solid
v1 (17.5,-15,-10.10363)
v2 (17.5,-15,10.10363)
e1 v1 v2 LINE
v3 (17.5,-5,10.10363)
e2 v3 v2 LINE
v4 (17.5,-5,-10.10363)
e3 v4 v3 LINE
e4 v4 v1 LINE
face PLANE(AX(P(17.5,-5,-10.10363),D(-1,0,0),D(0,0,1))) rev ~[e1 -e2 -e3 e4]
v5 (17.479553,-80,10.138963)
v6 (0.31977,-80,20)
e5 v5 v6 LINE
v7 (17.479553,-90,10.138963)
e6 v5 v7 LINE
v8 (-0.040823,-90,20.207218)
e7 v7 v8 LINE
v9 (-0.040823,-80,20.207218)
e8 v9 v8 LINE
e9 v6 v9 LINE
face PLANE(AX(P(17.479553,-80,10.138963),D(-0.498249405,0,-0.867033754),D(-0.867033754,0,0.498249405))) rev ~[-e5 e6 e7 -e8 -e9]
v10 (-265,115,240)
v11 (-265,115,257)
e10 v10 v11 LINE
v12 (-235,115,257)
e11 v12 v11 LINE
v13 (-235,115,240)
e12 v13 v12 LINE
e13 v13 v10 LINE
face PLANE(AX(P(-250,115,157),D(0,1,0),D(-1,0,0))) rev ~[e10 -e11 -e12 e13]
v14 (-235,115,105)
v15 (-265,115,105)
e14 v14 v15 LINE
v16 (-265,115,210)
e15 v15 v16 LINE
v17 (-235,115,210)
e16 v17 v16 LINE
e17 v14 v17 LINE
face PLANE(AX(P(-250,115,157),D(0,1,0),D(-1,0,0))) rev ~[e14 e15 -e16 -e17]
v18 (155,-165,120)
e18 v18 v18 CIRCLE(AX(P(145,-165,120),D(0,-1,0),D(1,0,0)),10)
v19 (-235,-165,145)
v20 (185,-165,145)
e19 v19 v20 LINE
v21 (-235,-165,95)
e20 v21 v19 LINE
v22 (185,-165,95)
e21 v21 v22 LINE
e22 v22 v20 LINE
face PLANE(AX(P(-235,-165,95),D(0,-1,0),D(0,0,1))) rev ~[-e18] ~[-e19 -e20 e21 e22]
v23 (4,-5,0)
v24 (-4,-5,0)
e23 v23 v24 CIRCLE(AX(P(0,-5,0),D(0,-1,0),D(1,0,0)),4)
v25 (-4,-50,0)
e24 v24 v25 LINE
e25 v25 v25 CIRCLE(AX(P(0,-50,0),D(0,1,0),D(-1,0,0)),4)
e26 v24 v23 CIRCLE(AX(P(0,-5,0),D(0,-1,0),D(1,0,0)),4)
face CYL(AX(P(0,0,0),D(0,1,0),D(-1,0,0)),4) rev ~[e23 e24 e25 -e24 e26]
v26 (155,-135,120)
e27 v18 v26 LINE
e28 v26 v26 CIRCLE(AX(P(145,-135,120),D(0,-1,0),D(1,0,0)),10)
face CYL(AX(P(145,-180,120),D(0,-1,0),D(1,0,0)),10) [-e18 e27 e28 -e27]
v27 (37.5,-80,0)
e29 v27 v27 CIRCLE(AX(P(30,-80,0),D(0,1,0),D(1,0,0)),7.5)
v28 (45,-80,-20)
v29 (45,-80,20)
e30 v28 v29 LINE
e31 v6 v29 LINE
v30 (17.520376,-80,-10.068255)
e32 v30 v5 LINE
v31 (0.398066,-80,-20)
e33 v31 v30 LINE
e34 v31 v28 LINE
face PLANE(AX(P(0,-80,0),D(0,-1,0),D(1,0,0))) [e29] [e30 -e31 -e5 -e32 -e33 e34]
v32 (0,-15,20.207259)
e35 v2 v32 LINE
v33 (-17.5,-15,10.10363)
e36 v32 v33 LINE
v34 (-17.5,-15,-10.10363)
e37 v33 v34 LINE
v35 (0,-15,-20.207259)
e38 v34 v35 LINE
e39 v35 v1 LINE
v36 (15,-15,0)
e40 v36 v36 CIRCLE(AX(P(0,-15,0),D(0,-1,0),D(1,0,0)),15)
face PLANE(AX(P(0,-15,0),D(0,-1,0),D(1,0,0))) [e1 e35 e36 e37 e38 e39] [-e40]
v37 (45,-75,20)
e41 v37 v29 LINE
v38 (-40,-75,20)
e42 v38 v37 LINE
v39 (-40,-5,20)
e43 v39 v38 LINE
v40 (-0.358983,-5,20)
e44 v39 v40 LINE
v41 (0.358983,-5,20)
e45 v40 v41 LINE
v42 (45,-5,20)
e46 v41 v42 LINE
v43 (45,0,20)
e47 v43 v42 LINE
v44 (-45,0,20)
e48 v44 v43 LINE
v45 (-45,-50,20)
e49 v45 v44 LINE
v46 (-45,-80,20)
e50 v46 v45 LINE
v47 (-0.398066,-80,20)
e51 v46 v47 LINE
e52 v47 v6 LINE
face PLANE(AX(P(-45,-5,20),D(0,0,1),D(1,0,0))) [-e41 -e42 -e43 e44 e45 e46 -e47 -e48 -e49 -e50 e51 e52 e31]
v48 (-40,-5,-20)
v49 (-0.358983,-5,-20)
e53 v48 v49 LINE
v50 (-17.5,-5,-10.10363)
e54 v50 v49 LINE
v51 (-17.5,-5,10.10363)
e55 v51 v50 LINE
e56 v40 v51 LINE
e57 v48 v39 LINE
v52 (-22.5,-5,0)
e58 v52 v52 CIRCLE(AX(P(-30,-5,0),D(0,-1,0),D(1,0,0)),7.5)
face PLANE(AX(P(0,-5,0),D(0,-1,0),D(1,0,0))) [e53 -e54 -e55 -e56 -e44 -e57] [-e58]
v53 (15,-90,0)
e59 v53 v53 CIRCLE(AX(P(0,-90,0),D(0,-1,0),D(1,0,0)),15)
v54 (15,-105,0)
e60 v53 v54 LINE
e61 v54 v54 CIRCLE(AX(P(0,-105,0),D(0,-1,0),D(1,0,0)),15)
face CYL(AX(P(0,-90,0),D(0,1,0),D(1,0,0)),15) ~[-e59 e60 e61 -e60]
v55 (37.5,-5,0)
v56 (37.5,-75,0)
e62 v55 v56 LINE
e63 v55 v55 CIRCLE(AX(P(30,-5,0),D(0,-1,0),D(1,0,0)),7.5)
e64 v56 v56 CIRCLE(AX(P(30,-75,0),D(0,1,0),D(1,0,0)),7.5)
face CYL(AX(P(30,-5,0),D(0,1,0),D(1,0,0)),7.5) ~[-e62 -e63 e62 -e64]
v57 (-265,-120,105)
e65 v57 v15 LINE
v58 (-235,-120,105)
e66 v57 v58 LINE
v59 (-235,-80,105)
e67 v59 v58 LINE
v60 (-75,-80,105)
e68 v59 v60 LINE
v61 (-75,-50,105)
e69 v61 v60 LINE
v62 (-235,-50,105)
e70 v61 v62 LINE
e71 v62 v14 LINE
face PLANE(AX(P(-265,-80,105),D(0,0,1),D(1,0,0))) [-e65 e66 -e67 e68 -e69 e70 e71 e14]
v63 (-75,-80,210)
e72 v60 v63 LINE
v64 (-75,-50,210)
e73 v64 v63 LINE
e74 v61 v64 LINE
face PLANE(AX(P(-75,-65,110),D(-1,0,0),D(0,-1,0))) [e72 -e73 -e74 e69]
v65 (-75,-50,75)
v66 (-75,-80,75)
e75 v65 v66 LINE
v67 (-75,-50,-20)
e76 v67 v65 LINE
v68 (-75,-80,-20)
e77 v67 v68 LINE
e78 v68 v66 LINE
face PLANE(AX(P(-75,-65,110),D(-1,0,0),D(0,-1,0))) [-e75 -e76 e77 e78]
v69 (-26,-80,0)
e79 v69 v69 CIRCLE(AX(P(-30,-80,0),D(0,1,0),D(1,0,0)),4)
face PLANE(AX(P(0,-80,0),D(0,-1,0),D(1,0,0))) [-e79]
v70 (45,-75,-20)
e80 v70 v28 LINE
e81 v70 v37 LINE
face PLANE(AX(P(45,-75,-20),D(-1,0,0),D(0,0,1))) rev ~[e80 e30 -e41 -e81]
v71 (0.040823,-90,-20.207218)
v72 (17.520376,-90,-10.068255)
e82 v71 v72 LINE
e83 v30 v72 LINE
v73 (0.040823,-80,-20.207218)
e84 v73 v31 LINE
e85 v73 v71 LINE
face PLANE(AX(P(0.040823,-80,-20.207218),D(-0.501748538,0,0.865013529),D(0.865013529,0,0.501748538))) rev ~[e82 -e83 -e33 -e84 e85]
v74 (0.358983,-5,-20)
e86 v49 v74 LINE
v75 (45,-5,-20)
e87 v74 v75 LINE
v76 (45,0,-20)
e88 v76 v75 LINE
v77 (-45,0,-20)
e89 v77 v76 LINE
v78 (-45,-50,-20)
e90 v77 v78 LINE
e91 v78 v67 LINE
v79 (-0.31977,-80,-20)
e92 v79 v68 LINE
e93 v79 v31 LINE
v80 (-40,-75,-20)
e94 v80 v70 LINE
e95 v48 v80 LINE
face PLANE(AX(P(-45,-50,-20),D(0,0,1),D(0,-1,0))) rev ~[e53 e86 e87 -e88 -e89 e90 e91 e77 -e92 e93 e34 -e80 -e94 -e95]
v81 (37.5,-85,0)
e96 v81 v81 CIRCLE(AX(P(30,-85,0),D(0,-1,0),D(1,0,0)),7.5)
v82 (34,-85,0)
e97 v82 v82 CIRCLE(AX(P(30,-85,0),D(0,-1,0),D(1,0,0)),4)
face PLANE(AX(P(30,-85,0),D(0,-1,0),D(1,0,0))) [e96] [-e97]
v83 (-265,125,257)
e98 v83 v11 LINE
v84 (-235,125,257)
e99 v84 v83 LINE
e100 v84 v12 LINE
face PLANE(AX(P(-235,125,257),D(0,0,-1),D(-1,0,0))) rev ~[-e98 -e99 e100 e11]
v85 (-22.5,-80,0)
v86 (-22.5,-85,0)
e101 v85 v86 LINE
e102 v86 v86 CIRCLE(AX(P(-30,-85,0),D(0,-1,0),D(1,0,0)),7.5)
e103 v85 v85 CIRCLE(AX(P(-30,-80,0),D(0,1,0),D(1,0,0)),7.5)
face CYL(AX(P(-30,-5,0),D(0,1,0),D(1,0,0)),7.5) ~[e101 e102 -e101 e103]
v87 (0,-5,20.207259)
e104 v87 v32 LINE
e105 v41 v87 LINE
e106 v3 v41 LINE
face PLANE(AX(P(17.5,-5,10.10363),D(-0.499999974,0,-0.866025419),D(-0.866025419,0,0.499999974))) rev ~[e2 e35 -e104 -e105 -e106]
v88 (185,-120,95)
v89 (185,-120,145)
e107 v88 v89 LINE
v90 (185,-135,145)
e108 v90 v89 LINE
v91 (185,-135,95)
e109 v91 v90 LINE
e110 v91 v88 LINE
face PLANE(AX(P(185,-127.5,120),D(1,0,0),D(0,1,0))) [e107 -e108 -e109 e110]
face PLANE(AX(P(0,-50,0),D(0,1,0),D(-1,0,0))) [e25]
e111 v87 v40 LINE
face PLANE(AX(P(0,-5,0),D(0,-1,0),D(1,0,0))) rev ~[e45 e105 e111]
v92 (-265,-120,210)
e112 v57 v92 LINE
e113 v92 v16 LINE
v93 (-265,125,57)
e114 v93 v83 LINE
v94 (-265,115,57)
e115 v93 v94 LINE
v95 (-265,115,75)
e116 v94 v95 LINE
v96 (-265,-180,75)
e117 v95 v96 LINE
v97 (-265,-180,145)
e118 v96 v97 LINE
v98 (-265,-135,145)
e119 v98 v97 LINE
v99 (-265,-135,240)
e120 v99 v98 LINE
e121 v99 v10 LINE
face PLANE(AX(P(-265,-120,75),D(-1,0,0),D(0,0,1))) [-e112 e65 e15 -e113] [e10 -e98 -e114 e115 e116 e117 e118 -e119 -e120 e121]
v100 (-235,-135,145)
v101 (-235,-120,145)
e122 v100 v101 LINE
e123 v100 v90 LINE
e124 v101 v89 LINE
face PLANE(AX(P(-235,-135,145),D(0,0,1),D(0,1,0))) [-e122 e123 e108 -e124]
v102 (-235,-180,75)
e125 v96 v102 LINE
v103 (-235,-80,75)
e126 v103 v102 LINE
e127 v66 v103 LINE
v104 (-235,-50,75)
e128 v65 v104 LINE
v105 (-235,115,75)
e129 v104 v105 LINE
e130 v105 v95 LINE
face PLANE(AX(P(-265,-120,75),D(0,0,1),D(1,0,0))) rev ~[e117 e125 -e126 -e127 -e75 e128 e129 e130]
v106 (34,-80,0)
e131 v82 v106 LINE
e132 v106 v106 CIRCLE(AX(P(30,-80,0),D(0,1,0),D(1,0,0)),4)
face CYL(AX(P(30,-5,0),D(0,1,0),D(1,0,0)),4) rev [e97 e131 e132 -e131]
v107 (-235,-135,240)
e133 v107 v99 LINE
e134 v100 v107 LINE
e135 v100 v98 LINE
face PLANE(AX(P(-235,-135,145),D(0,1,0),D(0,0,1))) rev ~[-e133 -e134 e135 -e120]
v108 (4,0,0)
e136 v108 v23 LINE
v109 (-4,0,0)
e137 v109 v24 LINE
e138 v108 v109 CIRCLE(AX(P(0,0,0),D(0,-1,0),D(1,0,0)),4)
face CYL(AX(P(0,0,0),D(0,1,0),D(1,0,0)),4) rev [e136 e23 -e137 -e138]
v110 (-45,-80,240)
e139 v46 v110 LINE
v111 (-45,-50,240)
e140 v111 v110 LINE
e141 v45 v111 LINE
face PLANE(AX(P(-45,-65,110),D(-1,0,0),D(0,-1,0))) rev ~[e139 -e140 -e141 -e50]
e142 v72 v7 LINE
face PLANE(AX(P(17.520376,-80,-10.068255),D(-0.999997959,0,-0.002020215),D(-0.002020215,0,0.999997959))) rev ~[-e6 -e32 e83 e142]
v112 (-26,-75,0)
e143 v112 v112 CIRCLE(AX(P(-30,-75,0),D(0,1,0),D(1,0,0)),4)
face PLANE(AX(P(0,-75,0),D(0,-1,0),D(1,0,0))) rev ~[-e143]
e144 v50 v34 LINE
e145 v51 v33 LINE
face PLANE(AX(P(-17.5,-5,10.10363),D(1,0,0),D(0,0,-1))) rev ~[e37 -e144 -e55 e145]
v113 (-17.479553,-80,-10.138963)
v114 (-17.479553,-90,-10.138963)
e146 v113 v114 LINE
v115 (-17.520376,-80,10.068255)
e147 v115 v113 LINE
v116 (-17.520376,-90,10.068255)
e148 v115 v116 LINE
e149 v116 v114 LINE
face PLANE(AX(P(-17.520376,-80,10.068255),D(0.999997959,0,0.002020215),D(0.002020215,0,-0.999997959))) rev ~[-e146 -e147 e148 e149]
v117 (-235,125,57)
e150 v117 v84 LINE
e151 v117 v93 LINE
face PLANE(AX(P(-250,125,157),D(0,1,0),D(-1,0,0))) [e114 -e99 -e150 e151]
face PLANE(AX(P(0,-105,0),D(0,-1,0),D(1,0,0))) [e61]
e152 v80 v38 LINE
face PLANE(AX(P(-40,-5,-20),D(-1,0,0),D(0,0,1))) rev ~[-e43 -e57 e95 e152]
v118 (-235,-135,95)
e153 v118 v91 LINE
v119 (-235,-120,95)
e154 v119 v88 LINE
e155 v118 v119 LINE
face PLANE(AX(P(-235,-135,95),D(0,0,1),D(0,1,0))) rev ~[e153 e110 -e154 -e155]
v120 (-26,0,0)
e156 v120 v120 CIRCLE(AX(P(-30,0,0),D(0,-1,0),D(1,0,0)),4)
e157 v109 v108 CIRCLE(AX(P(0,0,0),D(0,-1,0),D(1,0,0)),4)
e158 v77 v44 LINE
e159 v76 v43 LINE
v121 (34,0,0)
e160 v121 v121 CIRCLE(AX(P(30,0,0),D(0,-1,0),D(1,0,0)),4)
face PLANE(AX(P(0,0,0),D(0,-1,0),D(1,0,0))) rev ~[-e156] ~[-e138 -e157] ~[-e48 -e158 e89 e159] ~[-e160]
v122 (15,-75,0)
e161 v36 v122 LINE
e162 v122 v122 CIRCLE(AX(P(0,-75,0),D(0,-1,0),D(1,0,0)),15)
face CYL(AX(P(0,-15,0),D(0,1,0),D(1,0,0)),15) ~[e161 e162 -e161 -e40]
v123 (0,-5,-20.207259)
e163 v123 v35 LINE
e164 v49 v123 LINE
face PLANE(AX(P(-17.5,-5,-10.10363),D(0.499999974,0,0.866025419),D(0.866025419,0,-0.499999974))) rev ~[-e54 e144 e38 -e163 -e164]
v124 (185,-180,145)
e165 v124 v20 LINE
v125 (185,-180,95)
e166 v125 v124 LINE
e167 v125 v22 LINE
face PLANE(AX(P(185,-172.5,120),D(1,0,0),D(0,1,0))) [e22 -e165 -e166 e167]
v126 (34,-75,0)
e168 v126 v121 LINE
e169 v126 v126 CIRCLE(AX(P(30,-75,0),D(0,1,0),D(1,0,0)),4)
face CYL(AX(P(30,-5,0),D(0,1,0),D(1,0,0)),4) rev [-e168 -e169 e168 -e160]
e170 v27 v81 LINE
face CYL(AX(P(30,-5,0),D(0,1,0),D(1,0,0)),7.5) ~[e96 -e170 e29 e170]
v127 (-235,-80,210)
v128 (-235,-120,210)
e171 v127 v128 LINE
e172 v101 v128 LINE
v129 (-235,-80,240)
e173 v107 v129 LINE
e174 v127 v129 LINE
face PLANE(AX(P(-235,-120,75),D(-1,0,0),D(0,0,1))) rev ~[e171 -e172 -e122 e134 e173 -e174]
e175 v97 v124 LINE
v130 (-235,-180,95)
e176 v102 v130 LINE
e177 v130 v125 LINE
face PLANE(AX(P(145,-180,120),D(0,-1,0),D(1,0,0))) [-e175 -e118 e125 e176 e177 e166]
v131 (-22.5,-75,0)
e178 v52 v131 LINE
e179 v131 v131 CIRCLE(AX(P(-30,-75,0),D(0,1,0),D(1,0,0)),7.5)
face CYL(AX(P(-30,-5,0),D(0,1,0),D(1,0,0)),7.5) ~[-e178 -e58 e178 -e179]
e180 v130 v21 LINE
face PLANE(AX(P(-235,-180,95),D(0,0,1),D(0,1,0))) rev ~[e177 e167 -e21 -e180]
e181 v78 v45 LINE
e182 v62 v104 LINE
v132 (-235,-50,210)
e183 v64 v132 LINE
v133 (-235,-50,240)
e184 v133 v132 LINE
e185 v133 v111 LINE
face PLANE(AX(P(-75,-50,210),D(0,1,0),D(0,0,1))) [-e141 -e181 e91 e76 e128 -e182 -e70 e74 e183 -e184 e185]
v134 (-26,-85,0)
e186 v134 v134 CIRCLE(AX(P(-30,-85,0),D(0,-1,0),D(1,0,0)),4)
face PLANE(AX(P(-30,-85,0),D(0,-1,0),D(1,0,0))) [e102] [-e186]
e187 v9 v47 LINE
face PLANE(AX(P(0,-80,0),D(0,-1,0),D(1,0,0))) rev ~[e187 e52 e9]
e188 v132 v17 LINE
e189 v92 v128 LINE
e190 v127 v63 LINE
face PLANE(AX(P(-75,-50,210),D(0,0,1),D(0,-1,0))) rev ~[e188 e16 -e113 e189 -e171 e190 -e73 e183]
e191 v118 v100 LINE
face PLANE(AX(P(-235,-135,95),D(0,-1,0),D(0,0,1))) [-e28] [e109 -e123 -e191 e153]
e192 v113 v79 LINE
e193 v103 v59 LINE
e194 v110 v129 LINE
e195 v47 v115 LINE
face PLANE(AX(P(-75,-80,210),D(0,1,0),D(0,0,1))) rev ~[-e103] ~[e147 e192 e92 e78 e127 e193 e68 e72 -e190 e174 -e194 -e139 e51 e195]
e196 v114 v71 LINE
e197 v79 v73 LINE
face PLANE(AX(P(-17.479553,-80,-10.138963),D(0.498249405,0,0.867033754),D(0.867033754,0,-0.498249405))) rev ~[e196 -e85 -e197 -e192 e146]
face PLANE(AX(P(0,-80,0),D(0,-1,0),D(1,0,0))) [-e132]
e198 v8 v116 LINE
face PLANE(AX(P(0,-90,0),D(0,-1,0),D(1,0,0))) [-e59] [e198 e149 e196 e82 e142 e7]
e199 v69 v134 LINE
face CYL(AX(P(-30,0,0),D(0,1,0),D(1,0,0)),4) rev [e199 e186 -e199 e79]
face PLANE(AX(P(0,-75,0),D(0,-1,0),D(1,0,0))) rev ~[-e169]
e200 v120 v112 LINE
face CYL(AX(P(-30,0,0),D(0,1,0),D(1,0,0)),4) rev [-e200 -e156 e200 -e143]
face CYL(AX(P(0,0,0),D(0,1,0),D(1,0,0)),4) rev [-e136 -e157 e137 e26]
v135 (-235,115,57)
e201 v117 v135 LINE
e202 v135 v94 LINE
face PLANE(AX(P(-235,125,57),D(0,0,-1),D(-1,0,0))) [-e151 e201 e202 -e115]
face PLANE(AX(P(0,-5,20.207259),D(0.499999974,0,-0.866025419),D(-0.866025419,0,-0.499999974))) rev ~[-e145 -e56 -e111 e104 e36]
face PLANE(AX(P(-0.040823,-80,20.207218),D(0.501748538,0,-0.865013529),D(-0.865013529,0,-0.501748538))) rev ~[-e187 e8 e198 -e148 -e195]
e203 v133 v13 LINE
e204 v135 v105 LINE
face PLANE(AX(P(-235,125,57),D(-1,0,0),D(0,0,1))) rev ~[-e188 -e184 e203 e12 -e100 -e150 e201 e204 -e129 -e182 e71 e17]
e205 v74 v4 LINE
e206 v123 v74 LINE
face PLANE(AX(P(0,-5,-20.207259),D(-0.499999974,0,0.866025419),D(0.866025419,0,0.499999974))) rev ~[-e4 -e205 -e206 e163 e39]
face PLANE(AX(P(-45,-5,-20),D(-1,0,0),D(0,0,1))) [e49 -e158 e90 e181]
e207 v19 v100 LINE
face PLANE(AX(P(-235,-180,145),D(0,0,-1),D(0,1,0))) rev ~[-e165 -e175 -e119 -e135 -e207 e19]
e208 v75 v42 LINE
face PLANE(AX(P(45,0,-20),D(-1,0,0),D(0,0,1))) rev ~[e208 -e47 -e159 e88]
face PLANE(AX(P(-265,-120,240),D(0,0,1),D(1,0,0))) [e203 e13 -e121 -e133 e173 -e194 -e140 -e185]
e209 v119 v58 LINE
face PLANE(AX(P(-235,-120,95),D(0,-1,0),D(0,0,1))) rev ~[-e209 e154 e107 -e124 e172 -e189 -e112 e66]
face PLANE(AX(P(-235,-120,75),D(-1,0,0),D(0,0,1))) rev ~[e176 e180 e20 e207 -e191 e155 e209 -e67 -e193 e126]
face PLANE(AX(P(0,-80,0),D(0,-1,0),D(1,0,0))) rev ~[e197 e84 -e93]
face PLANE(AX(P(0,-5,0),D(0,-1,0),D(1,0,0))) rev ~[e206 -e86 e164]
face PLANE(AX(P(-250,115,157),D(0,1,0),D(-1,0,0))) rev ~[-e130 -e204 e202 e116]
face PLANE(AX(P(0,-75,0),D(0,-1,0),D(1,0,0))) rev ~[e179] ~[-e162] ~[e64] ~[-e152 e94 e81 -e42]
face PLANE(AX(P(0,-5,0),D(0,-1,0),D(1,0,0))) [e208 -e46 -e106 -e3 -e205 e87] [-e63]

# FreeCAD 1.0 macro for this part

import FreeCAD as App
import Part
import Sketcher

V = App.Vector
Q = App.Units.Quantity

doc = App.newDocument("Part")
body = doc.addObject("PartDesign::Body", "Body")

# Sketch on XZ plane
sketch1 = body.newObject("Sketcher::SketchObject", "Sketch")
sketch1.AttachmentSupport = (doc.getObject("XZ_Plane"), [""])
sketch1.MapMode = "FlatFace"
sketch1.addGeometry([
    Part.LineSegment(V(-45, 20, 0), V(-45, -20, 0)),  # 0
    Part.LineSegment(V(-45, -20, 0), V(45, -20, 0)),  # 1
    Part.LineSegment(V(45, -20, 0), V(45, 20, 0)),  # 2
    Part.LineSegment(V(45, 20, 0), V(-45, 20, 0)),  # 3
    Part.Circle(V(-30, 0, 0), V(0, 0, 1), 4),  # 4
    Part.Circle(V(0, 0, 0), V(0, 0, 1), 4),  # 5
    Part.Circle(V(30, 0, 0), V(0, 0, 1), 4),  # 6
], False)
sketch1.addConstraint([
    Sketcher.Constraint("Coincident", 0, 2, 1, 1),
    Sketcher.Constraint("Coincident", 1, 2, 2, 1),
    Sketcher.Constraint("Coincident", 2, 2, 3, 1),
    Sketcher.Constraint("Coincident", 3, 2, 0, 1),
    Sketcher.Constraint("Vertical", 0),
    Sketcher.Constraint("Horizontal", 1),
    Sketcher.Constraint("Vertical", 2),
    Sketcher.Constraint("Horizontal", 3),
    Sketcher.Constraint("Coincident", 5, 3, -1, 1),
    Sketcher.Constraint("Equal", 4, 5),
    Sketcher.Constraint("Equal", 5, 6),
    Sketcher.Constraint("Symmetric", 4, 3, 6, 3, -1, 1),
    Sketcher.Constraint("Symmetric", 0, 2, 2, 2, -1, 1),
    Sketcher.Constraint("PointOnObject", 4, 3, -1),
    Sketcher.Constraint("Diameter", 4, 8.0),
    Sketcher.Constraint("DistanceX", 1, 1, 1, 2, 90.0),
    Sketcher.Constraint("DistanceY", 0, 2, 0, 1, 40.0),
    Sketcher.Constraint("DistanceX", 4, 3, -1, 1, 30.0),
])
pad1 = body.newObject("PartDesign::Pad", "Pad")
pad1.Profile = sketch1
pad1.Length = 5

# Sketch on XZ plane
sketch2 = body.newObject("Sketcher::SketchObject", "Sketch001")
sketch2.AttachmentSupport = (doc.getObject("XZ_Plane"), [""])
sketch2.MapMode = "FlatFace"
sketch2.AttachmentOffset = App.Placement(V(0, 0, 5), App.Rotation())
sketch2.addGeometry([
    Part.LineSegment(V(18, -10, 0), V(18, 10, 0)),  # 0
    Part.LineSegment(V(18, 10, 0), V(0, 20, 0)),  # 1
    Part.LineSegment(V(0, 20, 0), V(-18, 10, 0)),  # 2
    Part.LineSegment(V(-18, 10, 0), V(-18, -10, 0)),  # 3
    Part.LineSegment(V(-18, -10, 0), V(0, -20, 0)),  # 4
    Part.LineSegment(V(0, -20, 0), V(18, -10, 0)),  # 5
], False)
sketch2.addConstraint([
    Sketcher.Constraint("Coincident", 0, 2, 1, 1),
    Sketcher.Constraint("Coincident", 1, 2, 2, 1),
    Sketcher.Constraint("Coincident", 2, 2, 3, 1),
    Sketcher.Constraint("Coincident", 3, 2, 4, 1),
    Sketcher.Constraint("Coincident", 4, 2, 5, 1),
    Sketcher.Constraint("Coincident", 5, 2, 0, 1),
    Sketcher.Constraint("Vertical", 0),
    Sketcher.Constraint("Vertical", 3),
    Sketcher.Constraint("Symmetric", 0, 2, 3, 2, -1, 1),
    Sketcher.Constraint("Symmetric", 1, 2, 4, 2, -1, 1),
    Sketcher.Constraint("PointOnObject", 1, 2, -2),
    Sketcher.Constraint("Parallel", 2, 5),
    Sketcher.Constraint("Horizontal", 0, 2, 2, 2),
    Sketcher.Constraint("Angle", 1, Q("150.000002 deg")),
    Sketcher.Constraint("DistanceX", 2, 2, 0, 2, 35.0),
    Sketcher.Constraint("DistanceY", 0, 1, 0, 2, 20.20726),
])
pad2 = body.newObject("PartDesign::Pad", "Pad001")
pad2.Profile = sketch2
pad2.Length = 10

# Sketch on XZ plane
sketch3 = body.newObject("Sketcher::SketchObject", "Sketch002")
sketch3.AttachmentSupport = (doc.getObject("XZ_Plane"), [""])
sketch3.MapMode = "FlatFace"
sketch3.AttachmentOffset = App.Placement(V(0, 0, 15), App.Rotation())
sketch3.addGeometry(Part.Circle(V(0, 0, 0), V(0, 0, 1), 15), False)
sketch3.addConstraint([
    Sketcher.Constraint("Coincident", 0, 3, -1, 1),
    Sketcher.Constraint("Diameter", 0, 30.0),
])
pad3 = body.newObject("PartDesign::Pad", "Pad002")
pad3.Profile = sketch3
pad3.Length = 60

# Sketch on XZ plane
sketch4 = body.newObject("Sketcher::SketchObject", "Sketch003")
sketch4.AttachmentSupport = (doc.getObject("XZ_Plane"), [""])
sketch4.MapMode = "FlatFace"
sketch4.AttachmentOffset = App.Placement(V(0, 0, 5), App.Rotation())
sketch4.addGeometry([
    Part.Circle(V(30, 0, 0), V(0, 0, 1), 7.5),
    Part.Circle(V(30, 0, 0), V(0, 0, 1), 4),
    Part.Circle(V(-30, 0, 0), V(0, 0, 1), 7.5),
    Part.Circle(V(-30, 0, 0), V(0, 0, 1), 4),
], False)
sketch4.addConstraint([
    Sketcher.Constraint("Coincident", 1, 3, 0, 3),
    Sketcher.Constraint("Coincident", 3, 3, 2, 3),
    Sketcher.Constraint("Equal", 0, 2),
    Sketcher.Constraint("Equal", 1, 3),
    Sketcher.Constraint("Symmetric", 0, 3, 2, 3, -1, 1),
    Sketcher.Constraint("PointOnObject", 0, 3, -1),
    Sketcher.Constraint("Diameter", 0, 15.0),
    Sketcher.Constraint("Diameter", 1, 8.0),
    Sketcher.Constraint("DistanceX", -1, 1, 0, 3, 30.0),
])
pad4 = body.newObject("PartDesign::Pad", "Pad003")
pad4.Profile = sketch4
pad4.Length = 80

# Sketch on XZ plane
sketch5 = body.newObject("Sketcher::SketchObject", "Sketch004")
sketch5.AttachmentSupport = (doc.getObject("XZ_Plane"), [""])
sketch5.MapMode = "FlatFace"
sketch5.AttachmentOffset = App.Placement(V(0, 0, 75), App.Rotation())
sketch5.addGeometry([
    Part.LineSegment(V(-45, 20, 0), V(-45, -20, 0)),
    Part.LineSegment(V(-45, -20, 0), V(45, -20, 0)),
    Part.LineSegment(V(45, -20, 0), V(45, 20, 0)),
    Part.LineSegment(V(45, 20, 0), V(-45, 20, 0)),
], False)
sketch5.addConstraint([
    Sketcher.Constraint("Coincident", 0, 2, 1, 1),
    Sketcher.Constraint("Coincident", 1, 2, 2, 1),
    Sketcher.Constraint("Coincident", 2, 2, 3, 1),
    Sketcher.Constraint("Coincident", 3, 2, 0, 1),
    Sketcher.Constraint("Vertical", 0),
    Sketcher.Constraint("Horizontal", 1),
    Sketcher.Constraint("Vertical", 2),
    Sketcher.Constraint("Horizontal", 3),
    Sketcher.Constraint("Symmetric", 0, 2, 2, 2, -1, 1),
    Sketcher.Constraint("DistanceX", 1, 1, 1, 2, 90.0),
    Sketcher.Constraint("DistanceY", 0, 2, 0, 1, 40.0),
])
pad5 = body.newObject("PartDesign::Pad", "Pad004")
pad5.Profile = sketch5
pad5.Length = 5

# Sketch on XZ plane
sketch6 = body.newObject("Sketcher::SketchObject", "Sketch005")
sketch6.AttachmentSupport = (doc.getObject("XZ_Plane"), [""])
sketch6.MapMode = "FlatFace"
sketch6.AttachmentOffset = App.Placement(V(0, 0, 80), App.Rotation())
sketch6.addGeometry([
    Part.LineSegment(V(0, -20, 0), V(18, -10, 0)),  # 0
    Part.LineSegment(V(18, -10, 0), V(17, 10, 0)),  # 1
    Part.LineSegment(V(17, 10, 0), V(0, 20, 0)),  # 2
    Part.LineSegment(V(0, 20, 0), V(-18, 10, 0)),  # 3
    Part.LineSegment(V(-18, 10, 0), V(-17, -10, 0)),  # 4
    Part.LineSegment(V(-17, -10, 0), V(0, -20, 0)),  # 5
], False)
sketch6.addConstraint([
    Sketcher.Constraint("Coincident", 0, 2, 1, 1),
    Sketcher.Constraint("Coincident", 1, 2, 2, 1),
    Sketcher.Constraint("Coincident", 2, 2, 3, 1),
    Sketcher.Constraint("Coincident", 3, 2, 4, 1),
    Sketcher.Constraint("Coincident", 4, 2, 5, 1),
    Sketcher.Constraint("Coincident", 5, 2, 0, 1),
    Sketcher.Constraint("Symmetric", 0, 2, 3, 2, -1, 1),
    Sketcher.Constraint("Symmetric", 1, 2, 4, 2, -1, 1),
    Sketcher.Constraint("Symmetric", 2, 2, 5, 2, -1, 1),
    Sketcher.Constraint("Equal", 0, 1),
    Sketcher.Constraint("Equal", 1, 2),
    Sketcher.Constraint("DistanceX", 2, 2, 0, 2, 17.561199),
    Sketcher.Constraint("Distance", 0, 20.20726),
    Sketcher.Constraint("DistanceY", -1, 1, 2, 2, 20.207218),
    Sketcher.Constraint("DistanceX", 3, 2, 0, 2, 35.040752),
])
pad6 = body.newObject("PartDesign::Pad", "Pad005")
pad6.Profile = sketch6
pad6.Length = 10

# Sketch on XZ plane
sketch7 = body.newObject("Sketcher::SketchObject", "Sketch006")
sketch7.AttachmentSupport = (doc.getObject("XZ_Plane"), [""])
sketch7.MapMode = "FlatFace"
sketch7.AttachmentOffset = App.Placement(V(0, 0, 90), App.Rotation())
sketch7.addGeometry(Part.Circle(V(0, 0, 0), V(0, 0, 1), 15), False)
sketch7.addConstraint([
    Sketcher.Constraint("Coincident", 0, 3, -1, 1),
    Sketcher.Constraint("Diameter", 0, 30.0),
])
pad7 = body.newObject("PartDesign::Pad", "Pad006")
pad7.Profile = sketch7
pad7.Length = 15

# Sketch on XZ plane
sketch8 = body.newObject("Sketcher::SketchObject", "Sketch007")
sketch8.AttachmentSupport = (doc.getObject("XZ_Plane"), [""])
sketch8.MapMode = "FlatFace"
sketch8.AttachmentOffset = App.Placement(V(0, 0, 5), App.Rotation())
sketch8.addGeometry([
    Part.LineSegment(V(-45, 20, 0), V(-45, -20, 0)),
    Part.LineSegment(V(-45, -20, 0), V(-40, -20, 0)),
    Part.LineSegment(V(-40, -20, 0), V(-40, 20, 0)),
    Part.LineSegment(V(-40, 20, 0), V(-45, 20, 0)),
], False)
sketch8.addConstraint([
    Sketcher.Constraint("Coincident", 0, 2, 1, 1),
    Sketcher.Constraint("Coincident", 1, 2, 2, 1),
    Sketcher.Constraint("Coincident", 2, 2, 3, 1),
    Sketcher.Constraint("Coincident", 3, 2, 0, 1),
    Sketcher.Constraint("Vertical", 0),
    Sketcher.Constraint("Horizontal", 1),
    Sketcher.Constraint("Vertical", 2),
    Sketcher.Constraint("Horizontal", 3),
    Sketcher.Constraint("DistanceX", 1, 1, 1, 2, 5.0),
    Sketcher.Constraint("DistanceY", 0, 2, 0, 1, 40.0),
    Sketcher.Constraint("DistanceX", 0, 2, -1, 1, 45.0),
    Sketcher.Constraint("DistanceY", 0, 2, -1, 1, 20.0),
])
pad8 = body.newObject("PartDesign::Pad", "Pad007")
pad8.Profile = sketch8
pad8.Type = "UpToLast"

# Sketch on XZ plane
sketch9 = body.newObject("Sketcher::SketchObject", "Sketch008")
sketch9.AttachmentSupport = (doc.getObject("XZ_Plane"), [""])
sketch9.MapMode = "FlatFace"
sketch9.addGeometry(Part.Circle(V(0, 0, 0), V(0, 0, 1), 4), False)
sketch9.addConstraint([
    Sketcher.Constraint("Coincident", 0, 3, -1, 1),
    Sketcher.Constraint("Diameter", 0, 8.0),
])
pocket1 = body.newObject("PartDesign::Pocket", "Pocket")
pocket1.Profile = sketch9
pocket1.Length = 50
pocket1.Reversed = True

# Sketch on YZ plane
sketch10 = body.newObject("Sketcher::SketchObject", "Sketch009")
sketch10.AttachmentSupport = (doc.getObject("YZ_Plane"), [""])
sketch10.MapMode = "FlatFace"
sketch10.AttachmentOffset = App.Placement(V(0, 0, -45), App.Rotation())
sketch10.addGeometry([
    Part.LineSegment(V(-50, 240, 0), V(-50, -20, 0)),
    Part.LineSegment(V(-50, -20, 0), V(-80, -20, 0)),
    Part.LineSegment(V(-80, -20, 0), V(-80, 240, 0)),
    Part.LineSegment(V(-80, 240, 0), V(-50, 240, 0)),
], False)
sketch10.addConstraint([
    Sketcher.Constraint("Coincident", 0, 2, 1, 1),
    Sketcher.Constraint("Coincident", 1, 2, 2, 1),
    Sketcher.Constraint("Coincident", 2, 2, 3, 1),
    Sketcher.Constraint("Coincident", 3, 2, 0, 1),
    Sketcher.Constraint("Vertical", 0),
    Sketcher.Constraint("Horizontal", 1),
    Sketcher.Constraint("Vertical", 2),
    Sketcher.Constraint("Horizontal", 3),
    Sketcher.Constraint("DistanceX", 1, 2, 1, 1, 30.0),
    Sketcher.Constraint("DistanceY", 0, 2, 0, 1, 260.0),
    Sketcher.Constraint("DistanceX", 0, 2, -1, 1, 50.0),
    Sketcher.Constraint("DistanceY", 0, 2, -1, 1, 20.0),
])
pad9 = body.newObject("PartDesign::Pad", "Pad008")
pad9.Profile = sketch10
pad9.Length = 30
pad9.Reversed = True

# Sketch on YZ plane
sketch11 = body.newObject("Sketcher::SketchObject", "Sketch010")
sketch11.AttachmentSupport = (doc.getObject("YZ_Plane"), [""])
sketch11.MapMode = "FlatFace"
sketch11.AttachmentOffset = App.Placement(V(0, 0, -75), App.Rotation())
sketch11.addGeometry([
    Part.LineSegment(V(-50, 105, 0), V(-50, 75, 0)),  # 0
    Part.LineSegment(V(-50, 75, 0), V(-80, 75, 0)),  # 1
    Part.LineSegment(V(-80, 75, 0), V(-80, 105, 0)),  # 2
    Part.LineSegment(V(-80, 105, 0), V(-50, 105, 0)),  # 3
    Part.LineSegment(V(-50, 240, 0), V(-50, 210, 0)),  # 4
    Part.LineSegment(V(-50, 210, 0), V(-80, 210, 0)),  # 5
    Part.LineSegment(V(-80, 210, 0), V(-80, 240, 0)),  # 6
    Part.LineSegment(V(-80, 240, 0), V(-50, 240, 0)),  # 7
], False)
sketch11.addConstraint([
    Sketcher.Constraint("Coincident", 0, 2, 1, 1),
    Sketcher.Constraint("Coincident", 1, 2, 2, 1),
    Sketcher.Constraint("Coincident", 2, 2, 3, 1),
    Sketcher.Constraint("Coincident", 3, 2, 0, 1),
    Sketcher.Constraint("Coincident", 4, 2, 5, 1),
    Sketcher.Constraint("Coincident", 5, 2, 6, 1),
    Sketcher.Constraint("Coincident", 6, 2, 7, 1),
    Sketcher.Constraint("Coincident", 7, 2, 4, 1),
    Sketcher.Constraint("Vertical", 0),
    Sketcher.Constraint("Horizontal", 1),
    Sketcher.Constraint("Vertical", 2),
    Sketcher.Constraint("Horizontal", 3),
    Sketcher.Constraint("Vertical", 4),
    Sketcher.Constraint("Horizontal", 5),
    Sketcher.Constraint("Vertical", 6),
    Sketcher.Constraint("Horizontal", 7),
    Sketcher.Constraint("Vertical", 3, 2, 4, 2),
    Sketcher.Constraint("Vertical", 2, 2, 5, 2),
    Sketcher.Constraint("Equal", 7, 0),
    Sketcher.Constraint("Equal", 2, 4),
    Sketcher.Constraint("DistanceX", 1, 2, 1, 1, 30.0),
    Sketcher.Constraint("DistanceX", 0, 2, -1, 1, 50.0),
    Sketcher.Constraint("DistanceY", -1, 1, 0, 2, 75.0),
    Sketcher.Constraint("DistanceY", -1, 1, 4, 2, 210.0),
])
pad10 = body.newObject("PartDesign::Pad", "Pad009")
pad10.Profile = sketch11
pad10.Length = 190
pad10.Reversed = True

# Sketch on XZ plane
sketch12 = body.newObject("Sketcher::SketchObject", "Sketch011")
sketch12.AttachmentSupport = (doc.getObject("XZ_Plane"), [""])
sketch12.MapMode = "FlatFace"
sketch12.AttachmentOffset = App.Placement(V(0, 0, 80), App.Rotation())
sketch12.addGeometry([
    Part.LineSegment(V(-265, 105, 0), V(-265, 75, 0)),  # 0
    Part.LineSegment(V(-265, 75, 0), V(-235, 75, 0)),  # 1
    Part.LineSegment(V(-235, 75, 0), V(-235, 105, 0)),  # 2
    Part.LineSegment(V(-235, 105, 0), V(-265, 105, 0)),  # 3
    Part.LineSegment(V(-265, 240, 0), V(-265, 210, 0)),  # 4
    Part.LineSegment(V(-265, 210, 0), V(-235, 210, 0)),  # 5
    Part.LineSegment(V(-235, 210, 0), V(-235, 240, 0)),  # 6
    Part.LineSegment(V(-235, 240, 0), V(-265, 240, 0)),  # 7
], False)
sketch12.addConstraint([
    Sketcher.Constraint("Coincident", 0, 2, 1, 1),
    Sketcher.Constraint("Coincident", 1, 2, 2, 1),
    Sketcher.Constraint("Coincident", 2, 2, 3, 1),
    Sketcher.Constraint("Coincident", 3, 2, 0, 1),
    Sketcher.Constraint("Coincident", 4, 2, 5, 1),
    Sketcher.Constraint("Coincident", 5, 2, 6, 1),
    Sketcher.Constraint("Coincident", 6, 2, 7, 1),
    Sketcher.Constraint("Coincident", 7, 2, 4, 1),
    Sketcher.Constraint("Vertical", 0),
    Sketcher.Constraint("Horizontal", 1),
    Sketcher.Constraint("Vertical", 2),
    Sketcher.Constraint("Horizontal", 3),
    Sketcher.Constraint("Vertical", 4),
    Sketcher.Constraint("Horizontal", 5),
    Sketcher.Constraint("Vertical", 6),
    Sketcher.Constraint("Horizontal", 7),
    Sketcher.Constraint("Vertical", 3, 2, 4, 2),
    Sketcher.Constraint("Vertical", 2, 2, 5, 2),
    Sketcher.Constraint("Equal", 7, 0),
    Sketcher.Constraint("Equal", 2, 4),
    Sketcher.Constraint("DistanceX", 1, 1, 1, 2, 30.0),
    Sketcher.Constraint("DistanceX", 0, 2, -1, 1, 265.0),
    Sketcher.Constraint("DistanceY", -1, 1, 0, 2, 75.0),
    Sketcher.Constraint("DistanceY", -1, 1, 4, 2, 210.0),
])
pad11 = body.newObject("PartDesign::Pad", "Pad010")
pad11.Profile = sketch12
pad11.Length = 205
pad11.Reversed = True

# Sketch on XZ plane
sketch13 = body.newObject("Sketcher::SketchObject", "Sketch012")
sketch13.AttachmentSupport = (doc.getObject("XZ_Plane"), [""])
sketch13.MapMode = "FlatFace"
sketch13.AttachmentOffset = App.Placement(V(0, 0, 80), App.Rotation())
sketch13.addGeometry([
    Part.LineSegment(V(-265, 105, 0), V(-265, 75, 0)),  # 0
    Part.LineSegment(V(-265, 75, 0), V(-235, 75, 0)),  # 1
    Part.LineSegment(V(-235, 75, 0), V(-235, 105, 0)),  # 2
    Part.LineSegment(V(-235, 105, 0), V(-265, 105, 0)),  # 3
    Part.LineSegment(V(-265, 240, 0), V(-265, 210, 0)),  # 4
    Part.LineSegment(V(-265, 210, 0), V(-235, 210, 0)),  # 5
    Part.LineSegment(V(-235, 210, 0), V(-235, 240, 0)),  # 6
    Part.LineSegment(V(-235, 240, 0), V(-265, 240, 0)),  # 7
], False)
sketch13.addConstraint([
    Sketcher.Constraint("Coincident", 0, 2, 1, 1),
    Sketcher.Constraint("Coincident", 1, 2, 2, 1),
    Sketcher.Constraint("Coincident", 2, 2, 3, 1),
    Sketcher.Constraint("Coincident", 3, 2, 0, 1),
    Sketcher.Constraint("Coincident", 4, 2, 5, 1),
    Sketcher.Constraint("Coincident", 5, 2, 6, 1),
    Sketcher.Constraint("Coincident", 6, 2, 7, 1),
    Sketcher.Constraint("Coincident", 7, 2, 4, 1),
    Sketcher.Constraint("Vertical", 0),
    Sketcher.Constraint("Horizontal", 1),
    Sketcher.Constraint("Vertical", 2),
    Sketcher.Constraint("Horizontal", 3),
    Sketcher.Constraint("Vertical", 4),
    Sketcher.Constraint("Horizontal", 5),
    Sketcher.Constraint("Vertical", 6),
    Sketcher.Constraint("Horizontal", 7),
    Sketcher.Constraint("Vertical", 3, 2, 4, 2),
    Sketcher.Constraint("Vertical", 2, 2, 5, 2),
    Sketcher.Constraint("Equal", 7, 0),
    Sketcher.Constraint("Equal", 2, 4),
    Sketcher.Constraint("DistanceX", 1, 1, 1, 2, 30.0),
    Sketcher.Constraint("DistanceX", 0, 2, -1, 1, 265.0),
    Sketcher.Constraint("DistanceY", -1, 1, 0, 2, 75.0),
    Sketcher.Constraint("DistanceY", -1, 1, 4, 2, 210.0),
])
pad12 = body.newObject("PartDesign::Pad", "Pad011")
pad12.Profile = sketch13
pad12.Length = 40

# Sketch on XZ plane
sketch14 = body.newObject("Sketcher::SketchObject", "Sketch013")
sketch14.AttachmentSupport = (doc.getObject("XZ_Plane"), [""])
sketch14.MapMode = "FlatFace"
sketch14.AttachmentOffset = App.Placement(V(0, 0, -125), App.Rotation())
sketch14.addGeometry([
    Part.LineSegment(V(-235, 257, 0), V(-235, 57, 0)),
    Part.LineSegment(V(-235, 57, 0), V(-265, 57, 0)),
    Part.LineSegment(V(-265, 57, 0), V(-265, 257, 0)),
    Part.LineSegment(V(-265, 257, 0), V(-235, 257, 0)),
], False)
sketch14.addConstraint([
    Sketcher.Constraint("Coincident", 0, 2, 1, 1),
    Sketcher.Constraint("Coincident", 1, 2, 2, 1),
    Sketcher.Constraint("Coincident", 2, 2, 3, 1),
    Sketcher.Constraint("Coincident", 3, 2, 0, 1),
    Sketcher.Constraint("Vertical", 0),
    Sketcher.Constraint("Horizontal", 1),
    Sketcher.Constraint("Vertical", 2),
    Sketcher.Constraint("Horizontal", 3),
    Sketcher.Constraint("DistanceX", 1, 2, 1, 1, 30.0),
    Sketcher.Constraint("DistanceY", 0, 2, 0, 1, 200.0),
    Sketcher.Constraint("DistanceX", 0, 2, -1, 1, 235.0),
    Sketcher.Constraint("DistanceY", -1, 1, 0, 2, 57.0),
])
pad13 = body.newObject("PartDesign::Pad", "Pad012")
pad13.Profile = sketch14
pad13.Length = 10

# Sketch on XZ plane
sketch15 = body.newObject("Sketcher::SketchObject", "Sketch014")
sketch15.AttachmentSupport = (doc.getObject("XZ_Plane"), [""])
sketch15.MapMode = "FlatFace"
sketch15.AttachmentOffset = App.Placement(V(0, 0, 120), App.Rotation())
sketch15.addGeometry([
    Part.LineSegment(V(-265, 240, 0), V(-265, 75, 0)),
    Part.LineSegment(V(-265, 75, 0), V(-235, 75, 0)),
    Part.LineSegment(V(-235, 75, 0), V(-235, 240, 0)),
    Part.LineSegment(V(-235, 240, 0), V(-265, 240, 0)),
], False)
sketch15.addConstraint([
    Sketcher.Constraint("Coincident", 0, 2, 1, 1),
    Sketcher.Constraint("Coincident", 1, 2, 2, 1),
    Sketcher.Constraint("Coincident", 2, 2, 3, 1),
    Sketcher.Constraint("Coincident", 3, 2, 0, 1),
    Sketcher.Constraint("Vertical", 0),
    Sketcher.Constraint("Horizontal", 1),
    Sketcher.Constraint("Vertical", 2),
    Sketcher.Constraint("Horizontal", 3),
    Sketcher.Constraint("DistanceX", 1, 1, 1, 2, 30.0),
    Sketcher.Constraint("DistanceY", 0, 2, 0, 1, 165.0),
    Sketcher.Constraint("DistanceX", 0, 2, -1, 1, 265.0),
    Sketcher.Constraint("DistanceY", -1, 1, 0, 2, 75.0),
])
pad14 = body.newObject("PartDesign::Pad", "Pad013")
pad14.Profile = sketch15
pad14.Length = 60

# Sketch on YZ plane
sketch16 = body.newObject("Sketcher::SketchObject", "Sketch015")
sketch16.AttachmentSupport = (doc.getObject("YZ_Plane"), [""])
sketch16.MapMode = "FlatFace"
sketch16.AttachmentOffset = App.Placement(V(0, 0, -235), App.Rotation())
sketch16.addGeometry([
    Part.LineSegment(V(-180, 145, 0), V(-180, 95, 0)),  # 0
    Part.LineSegment(V(-180, 95, 0), V(-165, 95, 0)),  # 1
    Part.LineSegment(V(-165, 95, 0), V(-165, 145, 0)),  # 2
    Part.LineSegment(V(-165, 145, 0), V(-180, 145, 0)),  # 3
    Part.LineSegment(V(-135, 145, 0), V(-135, 95, 0)),  # 4
    Part.LineSegment(V(-135, 95, 0), V(-120, 95, 0)),  # 5
    Part.LineSegment(V(-120, 95, 0), V(-120, 145, 0)),  # 6
    Part.LineSegment(V(-120, 145, 0), V(-135, 145, 0)),  # 7
], False)
sketch16.addConstraint([
    Sketcher.Constraint("Coincident", 0, 2, 1, 1),
    Sketcher.Constraint("Coincident", 1, 2, 2, 1),
    Sketcher.Constraint("Coincident", 2, 2, 3, 1),
    Sketcher.Constraint("Coincident", 3, 2, 0, 1),
    Sketcher.Constraint("Coincident", 4, 2, 5, 1),
    Sketcher.Constraint("Coincident", 5, 2, 6, 1),
    Sketcher.Constraint("Coincident", 6, 2, 7, 1),
    Sketcher.Constraint("Coincident", 7, 2, 4, 1),
    Sketcher.Constraint("Vertical", 0),
    Sketcher.Constraint("Horizontal", 1),
    Sketcher.Constraint("Vertical", 2),
    Sketcher.Constraint("Horizontal", 3),
    Sketcher.Constraint("Vertical", 4),
    Sketcher.Constraint("Horizontal", 5),
    Sketcher.Constraint("Vertical", 6),
    Sketcher.Constraint("Horizontal", 7),
    Sketcher.Constraint("Horizontal", 1, 2, 4, 2),
    Sketcher.Constraint("Horizontal", 3, 2, 6, 2),
    Sketcher.Constraint("Equal", 3, 5),
    Sketcher.Constraint("DistanceX", 1, 1, 1, 2, 15.0),
    Sketcher.Constraint("DistanceY", 0, 2, 0, 1, 50.0),
    Sketcher.Constraint("DistanceX", 0, 2, -1, 1, 180.0),
    Sketcher.Constraint("DistanceY", -1, 1, 0, 2, 95.0),
    Sketcher.Constraint("DistanceX", 4, 2, -1, 1, 135.0),
])
pad15 = body.newObject("PartDesign::Pad", "Pad014")
pad15.Profile = sketch16
pad15.Length = 420

# Sketch on YZ plane
sketch17 = body.newObject("Sketcher::SketchObject", "Sketch016")
sketch17.AttachmentSupport = (doc.getObject("YZ_Plane"), [""])
sketch17.MapMode = "FlatFace"
sketch17.AttachmentOffset = App.Placement(V(0, 0, -235), App.Rotation())
sketch17.addGeometry([
    Part.LineSegment(V(-180, 266, 0), V(-180, 145, 0)),
    Part.LineSegment(V(-180, 145, 0), V(-135, 145, 0)),
    Part.LineSegment(V(-135, 145, 0), V(-135, 266, 0)),
    Part.LineSegment(V(-135, 266, 0), V(-180, 266, 0)),
], False)
sketch17.addConstraint([
    Sketcher.Constraint("Coincident", 0, 2, 1, 1),
    Sketcher.Constraint("Coincident", 1, 2, 2, 1),
    Sketcher.Constraint("Coincident", 2, 2, 3, 1),
    Sketcher.Constraint("Coincident", 3, 2, 0, 1),
    Sketcher.Constraint("Vertical", 0),
    Sketcher.Constraint("Horizontal", 1),
    Sketcher.Constraint("Vertical", 2),
    Sketcher.Constraint("Horizontal", 3),
    Sketcher.Constraint("DistanceX", 1, 1, 1, 2, 45.0),
    Sketcher.Constraint("DistanceX", 0, 2, -1, 1, 180.0),
    Sketcher.Constraint("DistanceY", -1, 1, 0, 2, 145.0),
    Sketcher.Constraint("DistanceY", 0, 2, 0, 1, 121.339908),
])
pocket2 = body.newObject("PartDesign::Pocket", "Pocket001")
pocket2.Profile = sketch17
pocket2.Length = 40

# Sketch on XZ plane
sketch18 = body.newObject("Sketcher::SketchObject", "Sketch017")
sketch18.AttachmentSupport = (doc.getObject("XZ_Plane"), [""])
sketch18.MapMode = "FlatFace"
sketch18.AttachmentOffset = App.Placement(V(0, 0, 180), App.Rotation())
sketch18.addGeometry(Part.Circle(V(145, 120, 0), V(0, 0, 1), 10), False)
sketch18.addConstraint([
    Sketcher.Constraint("Diameter", 0, 20.0),
    Sketcher.Constraint("DistanceX", -1, 1, 0, 3, 145.0),
    Sketcher.Constraint("DistanceY", -1, 1, 0, 3, 120.0),
])
pad16 = body.newObject("PartDesign::Pad", "Pad015")
pad16.Profile = sketch18
pad16.Length = 60
pad16.Reversed = True

doc.recompute()
